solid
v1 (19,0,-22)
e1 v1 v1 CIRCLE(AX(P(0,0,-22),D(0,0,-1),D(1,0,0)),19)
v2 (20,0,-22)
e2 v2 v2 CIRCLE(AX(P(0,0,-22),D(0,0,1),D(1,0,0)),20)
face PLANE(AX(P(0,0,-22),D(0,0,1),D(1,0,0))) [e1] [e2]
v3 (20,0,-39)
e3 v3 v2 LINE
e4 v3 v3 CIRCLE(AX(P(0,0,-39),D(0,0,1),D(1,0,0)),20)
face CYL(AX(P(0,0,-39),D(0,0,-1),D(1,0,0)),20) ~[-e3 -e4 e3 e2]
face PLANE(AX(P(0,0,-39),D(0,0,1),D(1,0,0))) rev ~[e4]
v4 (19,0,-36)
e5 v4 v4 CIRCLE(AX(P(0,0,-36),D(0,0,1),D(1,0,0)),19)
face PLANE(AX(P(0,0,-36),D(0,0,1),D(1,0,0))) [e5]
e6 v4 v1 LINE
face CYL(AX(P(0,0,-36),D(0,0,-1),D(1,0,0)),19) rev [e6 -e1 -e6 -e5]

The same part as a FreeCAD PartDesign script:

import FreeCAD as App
import Part
import Sketcher

doc = App.newDocument("Part")
body = doc.addObject("PartDesign::Body", "Body")

sketch1 = body.newObject("Sketcher::SketchObject", "Sketch")
sketch1.AttachmentSupport = (doc.getObject("XY_Plane"), [""])
sketch1.MapMode = "FlatFace"
sketch1.AttachmentOffset = App.Placement(App.Vector(0, 0, 3), App.Rotation())
sketch1.addGeometry(Part.Circle(App.Vector(0, 0, 0), App.Vector(0, 0, 1), 19), False)
sketch1.addConstraint(Sketcher.Constraint("Coincident", 0, 3, -1, 1))
sketch1.addConstraint(Sketcher.Constraint("Diameter", 0, 38.0))
pad1 = body.newObject("PartDesign::Pad", "Pad")
pad1.Profile = sketch1
pad1.Length = 15
body2 = doc.addObject("PartDesign::Body", "Body001")

sketch2 = body2.newObject("Sketcher::SketchObject", "Sketch001")
sketch2.AttachmentSupport = (doc.getObject("XY_Plane001"), [""])
sketch2.MapMode = "FlatFace"
sketch2.addGeometry(Part.Circle(App.Vector(0, 0, 0), App.Vector(0, 0, 1), 20), False)
sketch2.addConstraint(Sketcher.Constraint("Coincident", 0, 3, -1, 1))
sketch2.addConstraint(Sketcher.Constraint("Diameter", 0, 40.0))
pad2 = body2.newObject("PartDesign::Pad", "Pad001")
pad2.Profile = sketch2
pad2.Length = 17
doc.recompute()

boolean = body2.newObject("PartDesign::Boolean", "Boolean")
boolean.Type = "Cut"
boolean.addObjects([body])
body3 = doc.addObject("PartDesign::Body", "Body002")
doc.recompute()

body2.Placement = App.Placement(App.Vector(0, 0, -39), App.Rotation(App.Vector(0, 0, 1), 0))
boolean2 = body3.newObject("PartDesign::Boolean", "Boolean001")
boolean2.Type = "Fuse"
boolean2.addObjects([body2])

doc.recompute()
